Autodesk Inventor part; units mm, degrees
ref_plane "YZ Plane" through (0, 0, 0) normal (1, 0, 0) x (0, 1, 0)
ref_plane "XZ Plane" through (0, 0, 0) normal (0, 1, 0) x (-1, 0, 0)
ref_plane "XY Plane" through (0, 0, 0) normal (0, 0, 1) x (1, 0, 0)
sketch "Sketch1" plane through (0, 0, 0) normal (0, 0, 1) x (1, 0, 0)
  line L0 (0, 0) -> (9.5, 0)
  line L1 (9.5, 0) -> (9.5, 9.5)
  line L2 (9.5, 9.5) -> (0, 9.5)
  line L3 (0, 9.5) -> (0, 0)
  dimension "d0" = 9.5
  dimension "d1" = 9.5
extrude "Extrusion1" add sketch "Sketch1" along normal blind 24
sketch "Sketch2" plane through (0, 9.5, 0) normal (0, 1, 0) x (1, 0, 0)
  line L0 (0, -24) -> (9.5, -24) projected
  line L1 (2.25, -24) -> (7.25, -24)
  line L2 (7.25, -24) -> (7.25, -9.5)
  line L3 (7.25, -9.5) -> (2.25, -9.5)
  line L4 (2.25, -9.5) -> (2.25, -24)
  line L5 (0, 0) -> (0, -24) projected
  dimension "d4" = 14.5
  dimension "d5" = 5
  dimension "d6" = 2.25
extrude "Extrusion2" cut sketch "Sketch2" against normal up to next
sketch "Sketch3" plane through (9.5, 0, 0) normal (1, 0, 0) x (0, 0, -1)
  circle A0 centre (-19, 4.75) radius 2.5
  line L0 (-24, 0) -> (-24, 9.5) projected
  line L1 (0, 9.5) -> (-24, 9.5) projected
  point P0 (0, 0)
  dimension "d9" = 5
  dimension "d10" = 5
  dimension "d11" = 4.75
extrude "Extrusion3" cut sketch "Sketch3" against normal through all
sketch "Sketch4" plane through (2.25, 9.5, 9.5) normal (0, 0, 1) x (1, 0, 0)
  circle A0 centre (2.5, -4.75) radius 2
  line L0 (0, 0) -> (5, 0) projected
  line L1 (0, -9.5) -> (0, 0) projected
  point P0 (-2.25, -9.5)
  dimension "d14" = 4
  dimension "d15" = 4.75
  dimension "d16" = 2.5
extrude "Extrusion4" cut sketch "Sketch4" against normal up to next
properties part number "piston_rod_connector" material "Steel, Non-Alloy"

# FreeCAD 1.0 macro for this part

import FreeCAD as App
import Part
import Sketcher
from FreeCAD import Vector

doc = App.newDocument("Part")
params = doc.addObject("Spreadsheet::Sheet", "Params")
for row, (alias, value) in enumerate([
    ("sketch1_width", "9.5 mm"),
    ("pad1_length", "24 mm"),
    ("sketch2_width", "5 mm"),
    ("sketch2_height", "14.5 mm"),
    ("sketch3_diameter", "5 mm"),
    ("sketch4_diameter", "4 mm"),
], start=1):
    params.set(f"A{row}", alias)
    params.set(f"B{row}", "=" + value)
    params.setAlias(f"B{row}", alias)

body = doc.addObject("PartDesign::Body", "Body")

sketch1 = body.newObject("Sketcher::SketchObject", "Sketch")
sketch1.AttachmentSupport = (doc.getObject("XY_Plane"), [""])
sketch1.MapMode = "FlatFace"
sketch1.addGeometry([
    Part.LineSegment(Vector(0, 10, 0), Vector(0, 0, 0)),
    Part.LineSegment(Vector(0, 0, 0), Vector(10, 0, 0)),
    Part.LineSegment(Vector(10, 0, 0), Vector(10, 10, 0)),
    Part.LineSegment(Vector(10, 10, 0), Vector(0, 10, 0)),
], False)
sketch1.addConstraint([
    Sketcher.Constraint("Coincident", 0, 2, 1, 1),
    Sketcher.Constraint("Coincident", 1, 2, 2, 1),
    Sketcher.Constraint("Coincident", 2, 2, 3, 1),
    Sketcher.Constraint("Coincident", 3, 2, 0, 1),
    Sketcher.Constraint("Vertical", 0),
    Sketcher.Constraint("Horizontal", 1),
    Sketcher.Constraint("Vertical", 2),
    Sketcher.Constraint("Horizontal", 3),
    Sketcher.Constraint("Coincident", 0, 2, -1, 1),
    Sketcher.Constraint("Equal", 3, 0),
    Sketcher.Constraint("DistanceX", 1, 1, 1, 2, 9.5),
])
sketch1.setExpression("Constraints[10]", "Params.sketch1_width")
pad1 = body.newObject("PartDesign::Pad", "Pad")
pad1.Profile = sketch1
pad1.setExpression("Length", "Params.pad1_length")

sketch2 = body.newObject("Sketcher::SketchObject", "Sketch001")
sketch2.AttachmentSupport = (doc.getObject("XZ_Plane"), [""])
sketch2.MapMode = "FlatFace"
sketch2.AttachmentOffset = App.Placement(Vector(0, 0, -9.5), App.Rotation())
sketch2.addGeometry([
    Part.LineSegment(Vector(2, 10, 0), Vector(2, 24, 0)),
    Part.LineSegment(Vector(2, 24, 0), Vector(7, 24, 0)),
    Part.LineSegment(Vector(7, 24, 0), Vector(7, 10, 0)),
    Part.LineSegment(Vector(7, 10, 0), Vector(2, 10, 0)),
], False)
sketch2.addConstraint([
    Sketcher.Constraint("Coincident", 0, 2, 1, 1),
    Sketcher.Constraint("Coincident", 1, 2, 2, 1),
    Sketcher.Constraint("Coincident", 2, 2, 3, 1),
    Sketcher.Constraint("Coincident", 3, 2, 0, 1),
    Sketcher.Constraint("Vertical", 0),
    Sketcher.Constraint("Horizontal", 1),
    Sketcher.Constraint("Vertical", 2),
    Sketcher.Constraint("Horizontal", 3),
    Sketcher.Constraint("DistanceX", 1, 1, 1, 2, 5.0),
    Sketcher.Constraint("DistanceY", 0, 1, 0, 2, 14.5),
    Sketcher.Constraint("DistanceX", -1, 1, 0, 2, 2.25),
    Sketcher.Constraint("DistanceY", -1, 1, 0, 2, 24.0),
])
sketch2.setExpression("Constraints[8]", "Params.sketch2_width")
sketch2.setExpression("Constraints[9]", "Params.sketch2_height")
pocket1 = body.newObject("PartDesign::Pocket", "Pocket")
pocket1.Profile = sketch2
pocket1.Type = "UpToFirst"
pocket1.Reversed = True

sketch3 = body.newObject("Sketcher::SketchObject", "Sketch002")
sketch3.AttachmentSupport = (doc.getObject("YZ_Plane"), [""])
sketch3.MapMode = "FlatFace"
sketch3.AttachmentOffset = App.Placement(Vector(0, 0, 9.5), App.Rotation())
sketch3.addGeometry(Part.Circle(Vector(4.8, 19, 0), Vector(0, 0, 1), 2.5), False)
sketch3.addConstraint([
    Sketcher.Constraint("Diameter", 0, 5.0),
    Sketcher.Constraint("DistanceX", -1, 1, 0, 3, 4.75),
    Sketcher.Constraint("DistanceY", -1, 1, 0, 3, 19.0),
])
sketch3.setExpression("Constraints[0]", "Params.sketch3_diameter")
pocket2 = body.newObject("PartDesign::Pocket", "Pocket001")
pocket2.Profile = sketch3
pocket2.Type = "ThroughAll"

sketch4 = body.newObject("Sketcher::SketchObject", "Sketch003")
sketch4.AttachmentSupport = (doc.getObject("XY_Plane"), [""])
sketch4.MapMode = "FlatFace"
sketch4.AttachmentOffset = App.Placement(Vector(0, 0, 9.5), App.Rotation())
sketch4.addGeometry(Part.Circle(Vector(4.8, 4.8, 0), Vector(0, 0, 1), 2), False)
sketch4.addConstraint([
    Sketcher.Constraint("Diameter", 0, 4.0),
    Sketcher.Constraint("DistanceX", -1, 1, 0, 3, 4.75),
    Sketcher.Constraint("DistanceY", -1, 1, 0, 3, 4.75),
])
sketch4.setExpression("Constraints[0]", "Params.sketch4_diameter")
pocket3 = body.newObject("PartDesign::Pocket", "Pocket002")
pocket3.Profile = sketch4
pocket3.Type = "UpToFirst"

doc.recompute()
